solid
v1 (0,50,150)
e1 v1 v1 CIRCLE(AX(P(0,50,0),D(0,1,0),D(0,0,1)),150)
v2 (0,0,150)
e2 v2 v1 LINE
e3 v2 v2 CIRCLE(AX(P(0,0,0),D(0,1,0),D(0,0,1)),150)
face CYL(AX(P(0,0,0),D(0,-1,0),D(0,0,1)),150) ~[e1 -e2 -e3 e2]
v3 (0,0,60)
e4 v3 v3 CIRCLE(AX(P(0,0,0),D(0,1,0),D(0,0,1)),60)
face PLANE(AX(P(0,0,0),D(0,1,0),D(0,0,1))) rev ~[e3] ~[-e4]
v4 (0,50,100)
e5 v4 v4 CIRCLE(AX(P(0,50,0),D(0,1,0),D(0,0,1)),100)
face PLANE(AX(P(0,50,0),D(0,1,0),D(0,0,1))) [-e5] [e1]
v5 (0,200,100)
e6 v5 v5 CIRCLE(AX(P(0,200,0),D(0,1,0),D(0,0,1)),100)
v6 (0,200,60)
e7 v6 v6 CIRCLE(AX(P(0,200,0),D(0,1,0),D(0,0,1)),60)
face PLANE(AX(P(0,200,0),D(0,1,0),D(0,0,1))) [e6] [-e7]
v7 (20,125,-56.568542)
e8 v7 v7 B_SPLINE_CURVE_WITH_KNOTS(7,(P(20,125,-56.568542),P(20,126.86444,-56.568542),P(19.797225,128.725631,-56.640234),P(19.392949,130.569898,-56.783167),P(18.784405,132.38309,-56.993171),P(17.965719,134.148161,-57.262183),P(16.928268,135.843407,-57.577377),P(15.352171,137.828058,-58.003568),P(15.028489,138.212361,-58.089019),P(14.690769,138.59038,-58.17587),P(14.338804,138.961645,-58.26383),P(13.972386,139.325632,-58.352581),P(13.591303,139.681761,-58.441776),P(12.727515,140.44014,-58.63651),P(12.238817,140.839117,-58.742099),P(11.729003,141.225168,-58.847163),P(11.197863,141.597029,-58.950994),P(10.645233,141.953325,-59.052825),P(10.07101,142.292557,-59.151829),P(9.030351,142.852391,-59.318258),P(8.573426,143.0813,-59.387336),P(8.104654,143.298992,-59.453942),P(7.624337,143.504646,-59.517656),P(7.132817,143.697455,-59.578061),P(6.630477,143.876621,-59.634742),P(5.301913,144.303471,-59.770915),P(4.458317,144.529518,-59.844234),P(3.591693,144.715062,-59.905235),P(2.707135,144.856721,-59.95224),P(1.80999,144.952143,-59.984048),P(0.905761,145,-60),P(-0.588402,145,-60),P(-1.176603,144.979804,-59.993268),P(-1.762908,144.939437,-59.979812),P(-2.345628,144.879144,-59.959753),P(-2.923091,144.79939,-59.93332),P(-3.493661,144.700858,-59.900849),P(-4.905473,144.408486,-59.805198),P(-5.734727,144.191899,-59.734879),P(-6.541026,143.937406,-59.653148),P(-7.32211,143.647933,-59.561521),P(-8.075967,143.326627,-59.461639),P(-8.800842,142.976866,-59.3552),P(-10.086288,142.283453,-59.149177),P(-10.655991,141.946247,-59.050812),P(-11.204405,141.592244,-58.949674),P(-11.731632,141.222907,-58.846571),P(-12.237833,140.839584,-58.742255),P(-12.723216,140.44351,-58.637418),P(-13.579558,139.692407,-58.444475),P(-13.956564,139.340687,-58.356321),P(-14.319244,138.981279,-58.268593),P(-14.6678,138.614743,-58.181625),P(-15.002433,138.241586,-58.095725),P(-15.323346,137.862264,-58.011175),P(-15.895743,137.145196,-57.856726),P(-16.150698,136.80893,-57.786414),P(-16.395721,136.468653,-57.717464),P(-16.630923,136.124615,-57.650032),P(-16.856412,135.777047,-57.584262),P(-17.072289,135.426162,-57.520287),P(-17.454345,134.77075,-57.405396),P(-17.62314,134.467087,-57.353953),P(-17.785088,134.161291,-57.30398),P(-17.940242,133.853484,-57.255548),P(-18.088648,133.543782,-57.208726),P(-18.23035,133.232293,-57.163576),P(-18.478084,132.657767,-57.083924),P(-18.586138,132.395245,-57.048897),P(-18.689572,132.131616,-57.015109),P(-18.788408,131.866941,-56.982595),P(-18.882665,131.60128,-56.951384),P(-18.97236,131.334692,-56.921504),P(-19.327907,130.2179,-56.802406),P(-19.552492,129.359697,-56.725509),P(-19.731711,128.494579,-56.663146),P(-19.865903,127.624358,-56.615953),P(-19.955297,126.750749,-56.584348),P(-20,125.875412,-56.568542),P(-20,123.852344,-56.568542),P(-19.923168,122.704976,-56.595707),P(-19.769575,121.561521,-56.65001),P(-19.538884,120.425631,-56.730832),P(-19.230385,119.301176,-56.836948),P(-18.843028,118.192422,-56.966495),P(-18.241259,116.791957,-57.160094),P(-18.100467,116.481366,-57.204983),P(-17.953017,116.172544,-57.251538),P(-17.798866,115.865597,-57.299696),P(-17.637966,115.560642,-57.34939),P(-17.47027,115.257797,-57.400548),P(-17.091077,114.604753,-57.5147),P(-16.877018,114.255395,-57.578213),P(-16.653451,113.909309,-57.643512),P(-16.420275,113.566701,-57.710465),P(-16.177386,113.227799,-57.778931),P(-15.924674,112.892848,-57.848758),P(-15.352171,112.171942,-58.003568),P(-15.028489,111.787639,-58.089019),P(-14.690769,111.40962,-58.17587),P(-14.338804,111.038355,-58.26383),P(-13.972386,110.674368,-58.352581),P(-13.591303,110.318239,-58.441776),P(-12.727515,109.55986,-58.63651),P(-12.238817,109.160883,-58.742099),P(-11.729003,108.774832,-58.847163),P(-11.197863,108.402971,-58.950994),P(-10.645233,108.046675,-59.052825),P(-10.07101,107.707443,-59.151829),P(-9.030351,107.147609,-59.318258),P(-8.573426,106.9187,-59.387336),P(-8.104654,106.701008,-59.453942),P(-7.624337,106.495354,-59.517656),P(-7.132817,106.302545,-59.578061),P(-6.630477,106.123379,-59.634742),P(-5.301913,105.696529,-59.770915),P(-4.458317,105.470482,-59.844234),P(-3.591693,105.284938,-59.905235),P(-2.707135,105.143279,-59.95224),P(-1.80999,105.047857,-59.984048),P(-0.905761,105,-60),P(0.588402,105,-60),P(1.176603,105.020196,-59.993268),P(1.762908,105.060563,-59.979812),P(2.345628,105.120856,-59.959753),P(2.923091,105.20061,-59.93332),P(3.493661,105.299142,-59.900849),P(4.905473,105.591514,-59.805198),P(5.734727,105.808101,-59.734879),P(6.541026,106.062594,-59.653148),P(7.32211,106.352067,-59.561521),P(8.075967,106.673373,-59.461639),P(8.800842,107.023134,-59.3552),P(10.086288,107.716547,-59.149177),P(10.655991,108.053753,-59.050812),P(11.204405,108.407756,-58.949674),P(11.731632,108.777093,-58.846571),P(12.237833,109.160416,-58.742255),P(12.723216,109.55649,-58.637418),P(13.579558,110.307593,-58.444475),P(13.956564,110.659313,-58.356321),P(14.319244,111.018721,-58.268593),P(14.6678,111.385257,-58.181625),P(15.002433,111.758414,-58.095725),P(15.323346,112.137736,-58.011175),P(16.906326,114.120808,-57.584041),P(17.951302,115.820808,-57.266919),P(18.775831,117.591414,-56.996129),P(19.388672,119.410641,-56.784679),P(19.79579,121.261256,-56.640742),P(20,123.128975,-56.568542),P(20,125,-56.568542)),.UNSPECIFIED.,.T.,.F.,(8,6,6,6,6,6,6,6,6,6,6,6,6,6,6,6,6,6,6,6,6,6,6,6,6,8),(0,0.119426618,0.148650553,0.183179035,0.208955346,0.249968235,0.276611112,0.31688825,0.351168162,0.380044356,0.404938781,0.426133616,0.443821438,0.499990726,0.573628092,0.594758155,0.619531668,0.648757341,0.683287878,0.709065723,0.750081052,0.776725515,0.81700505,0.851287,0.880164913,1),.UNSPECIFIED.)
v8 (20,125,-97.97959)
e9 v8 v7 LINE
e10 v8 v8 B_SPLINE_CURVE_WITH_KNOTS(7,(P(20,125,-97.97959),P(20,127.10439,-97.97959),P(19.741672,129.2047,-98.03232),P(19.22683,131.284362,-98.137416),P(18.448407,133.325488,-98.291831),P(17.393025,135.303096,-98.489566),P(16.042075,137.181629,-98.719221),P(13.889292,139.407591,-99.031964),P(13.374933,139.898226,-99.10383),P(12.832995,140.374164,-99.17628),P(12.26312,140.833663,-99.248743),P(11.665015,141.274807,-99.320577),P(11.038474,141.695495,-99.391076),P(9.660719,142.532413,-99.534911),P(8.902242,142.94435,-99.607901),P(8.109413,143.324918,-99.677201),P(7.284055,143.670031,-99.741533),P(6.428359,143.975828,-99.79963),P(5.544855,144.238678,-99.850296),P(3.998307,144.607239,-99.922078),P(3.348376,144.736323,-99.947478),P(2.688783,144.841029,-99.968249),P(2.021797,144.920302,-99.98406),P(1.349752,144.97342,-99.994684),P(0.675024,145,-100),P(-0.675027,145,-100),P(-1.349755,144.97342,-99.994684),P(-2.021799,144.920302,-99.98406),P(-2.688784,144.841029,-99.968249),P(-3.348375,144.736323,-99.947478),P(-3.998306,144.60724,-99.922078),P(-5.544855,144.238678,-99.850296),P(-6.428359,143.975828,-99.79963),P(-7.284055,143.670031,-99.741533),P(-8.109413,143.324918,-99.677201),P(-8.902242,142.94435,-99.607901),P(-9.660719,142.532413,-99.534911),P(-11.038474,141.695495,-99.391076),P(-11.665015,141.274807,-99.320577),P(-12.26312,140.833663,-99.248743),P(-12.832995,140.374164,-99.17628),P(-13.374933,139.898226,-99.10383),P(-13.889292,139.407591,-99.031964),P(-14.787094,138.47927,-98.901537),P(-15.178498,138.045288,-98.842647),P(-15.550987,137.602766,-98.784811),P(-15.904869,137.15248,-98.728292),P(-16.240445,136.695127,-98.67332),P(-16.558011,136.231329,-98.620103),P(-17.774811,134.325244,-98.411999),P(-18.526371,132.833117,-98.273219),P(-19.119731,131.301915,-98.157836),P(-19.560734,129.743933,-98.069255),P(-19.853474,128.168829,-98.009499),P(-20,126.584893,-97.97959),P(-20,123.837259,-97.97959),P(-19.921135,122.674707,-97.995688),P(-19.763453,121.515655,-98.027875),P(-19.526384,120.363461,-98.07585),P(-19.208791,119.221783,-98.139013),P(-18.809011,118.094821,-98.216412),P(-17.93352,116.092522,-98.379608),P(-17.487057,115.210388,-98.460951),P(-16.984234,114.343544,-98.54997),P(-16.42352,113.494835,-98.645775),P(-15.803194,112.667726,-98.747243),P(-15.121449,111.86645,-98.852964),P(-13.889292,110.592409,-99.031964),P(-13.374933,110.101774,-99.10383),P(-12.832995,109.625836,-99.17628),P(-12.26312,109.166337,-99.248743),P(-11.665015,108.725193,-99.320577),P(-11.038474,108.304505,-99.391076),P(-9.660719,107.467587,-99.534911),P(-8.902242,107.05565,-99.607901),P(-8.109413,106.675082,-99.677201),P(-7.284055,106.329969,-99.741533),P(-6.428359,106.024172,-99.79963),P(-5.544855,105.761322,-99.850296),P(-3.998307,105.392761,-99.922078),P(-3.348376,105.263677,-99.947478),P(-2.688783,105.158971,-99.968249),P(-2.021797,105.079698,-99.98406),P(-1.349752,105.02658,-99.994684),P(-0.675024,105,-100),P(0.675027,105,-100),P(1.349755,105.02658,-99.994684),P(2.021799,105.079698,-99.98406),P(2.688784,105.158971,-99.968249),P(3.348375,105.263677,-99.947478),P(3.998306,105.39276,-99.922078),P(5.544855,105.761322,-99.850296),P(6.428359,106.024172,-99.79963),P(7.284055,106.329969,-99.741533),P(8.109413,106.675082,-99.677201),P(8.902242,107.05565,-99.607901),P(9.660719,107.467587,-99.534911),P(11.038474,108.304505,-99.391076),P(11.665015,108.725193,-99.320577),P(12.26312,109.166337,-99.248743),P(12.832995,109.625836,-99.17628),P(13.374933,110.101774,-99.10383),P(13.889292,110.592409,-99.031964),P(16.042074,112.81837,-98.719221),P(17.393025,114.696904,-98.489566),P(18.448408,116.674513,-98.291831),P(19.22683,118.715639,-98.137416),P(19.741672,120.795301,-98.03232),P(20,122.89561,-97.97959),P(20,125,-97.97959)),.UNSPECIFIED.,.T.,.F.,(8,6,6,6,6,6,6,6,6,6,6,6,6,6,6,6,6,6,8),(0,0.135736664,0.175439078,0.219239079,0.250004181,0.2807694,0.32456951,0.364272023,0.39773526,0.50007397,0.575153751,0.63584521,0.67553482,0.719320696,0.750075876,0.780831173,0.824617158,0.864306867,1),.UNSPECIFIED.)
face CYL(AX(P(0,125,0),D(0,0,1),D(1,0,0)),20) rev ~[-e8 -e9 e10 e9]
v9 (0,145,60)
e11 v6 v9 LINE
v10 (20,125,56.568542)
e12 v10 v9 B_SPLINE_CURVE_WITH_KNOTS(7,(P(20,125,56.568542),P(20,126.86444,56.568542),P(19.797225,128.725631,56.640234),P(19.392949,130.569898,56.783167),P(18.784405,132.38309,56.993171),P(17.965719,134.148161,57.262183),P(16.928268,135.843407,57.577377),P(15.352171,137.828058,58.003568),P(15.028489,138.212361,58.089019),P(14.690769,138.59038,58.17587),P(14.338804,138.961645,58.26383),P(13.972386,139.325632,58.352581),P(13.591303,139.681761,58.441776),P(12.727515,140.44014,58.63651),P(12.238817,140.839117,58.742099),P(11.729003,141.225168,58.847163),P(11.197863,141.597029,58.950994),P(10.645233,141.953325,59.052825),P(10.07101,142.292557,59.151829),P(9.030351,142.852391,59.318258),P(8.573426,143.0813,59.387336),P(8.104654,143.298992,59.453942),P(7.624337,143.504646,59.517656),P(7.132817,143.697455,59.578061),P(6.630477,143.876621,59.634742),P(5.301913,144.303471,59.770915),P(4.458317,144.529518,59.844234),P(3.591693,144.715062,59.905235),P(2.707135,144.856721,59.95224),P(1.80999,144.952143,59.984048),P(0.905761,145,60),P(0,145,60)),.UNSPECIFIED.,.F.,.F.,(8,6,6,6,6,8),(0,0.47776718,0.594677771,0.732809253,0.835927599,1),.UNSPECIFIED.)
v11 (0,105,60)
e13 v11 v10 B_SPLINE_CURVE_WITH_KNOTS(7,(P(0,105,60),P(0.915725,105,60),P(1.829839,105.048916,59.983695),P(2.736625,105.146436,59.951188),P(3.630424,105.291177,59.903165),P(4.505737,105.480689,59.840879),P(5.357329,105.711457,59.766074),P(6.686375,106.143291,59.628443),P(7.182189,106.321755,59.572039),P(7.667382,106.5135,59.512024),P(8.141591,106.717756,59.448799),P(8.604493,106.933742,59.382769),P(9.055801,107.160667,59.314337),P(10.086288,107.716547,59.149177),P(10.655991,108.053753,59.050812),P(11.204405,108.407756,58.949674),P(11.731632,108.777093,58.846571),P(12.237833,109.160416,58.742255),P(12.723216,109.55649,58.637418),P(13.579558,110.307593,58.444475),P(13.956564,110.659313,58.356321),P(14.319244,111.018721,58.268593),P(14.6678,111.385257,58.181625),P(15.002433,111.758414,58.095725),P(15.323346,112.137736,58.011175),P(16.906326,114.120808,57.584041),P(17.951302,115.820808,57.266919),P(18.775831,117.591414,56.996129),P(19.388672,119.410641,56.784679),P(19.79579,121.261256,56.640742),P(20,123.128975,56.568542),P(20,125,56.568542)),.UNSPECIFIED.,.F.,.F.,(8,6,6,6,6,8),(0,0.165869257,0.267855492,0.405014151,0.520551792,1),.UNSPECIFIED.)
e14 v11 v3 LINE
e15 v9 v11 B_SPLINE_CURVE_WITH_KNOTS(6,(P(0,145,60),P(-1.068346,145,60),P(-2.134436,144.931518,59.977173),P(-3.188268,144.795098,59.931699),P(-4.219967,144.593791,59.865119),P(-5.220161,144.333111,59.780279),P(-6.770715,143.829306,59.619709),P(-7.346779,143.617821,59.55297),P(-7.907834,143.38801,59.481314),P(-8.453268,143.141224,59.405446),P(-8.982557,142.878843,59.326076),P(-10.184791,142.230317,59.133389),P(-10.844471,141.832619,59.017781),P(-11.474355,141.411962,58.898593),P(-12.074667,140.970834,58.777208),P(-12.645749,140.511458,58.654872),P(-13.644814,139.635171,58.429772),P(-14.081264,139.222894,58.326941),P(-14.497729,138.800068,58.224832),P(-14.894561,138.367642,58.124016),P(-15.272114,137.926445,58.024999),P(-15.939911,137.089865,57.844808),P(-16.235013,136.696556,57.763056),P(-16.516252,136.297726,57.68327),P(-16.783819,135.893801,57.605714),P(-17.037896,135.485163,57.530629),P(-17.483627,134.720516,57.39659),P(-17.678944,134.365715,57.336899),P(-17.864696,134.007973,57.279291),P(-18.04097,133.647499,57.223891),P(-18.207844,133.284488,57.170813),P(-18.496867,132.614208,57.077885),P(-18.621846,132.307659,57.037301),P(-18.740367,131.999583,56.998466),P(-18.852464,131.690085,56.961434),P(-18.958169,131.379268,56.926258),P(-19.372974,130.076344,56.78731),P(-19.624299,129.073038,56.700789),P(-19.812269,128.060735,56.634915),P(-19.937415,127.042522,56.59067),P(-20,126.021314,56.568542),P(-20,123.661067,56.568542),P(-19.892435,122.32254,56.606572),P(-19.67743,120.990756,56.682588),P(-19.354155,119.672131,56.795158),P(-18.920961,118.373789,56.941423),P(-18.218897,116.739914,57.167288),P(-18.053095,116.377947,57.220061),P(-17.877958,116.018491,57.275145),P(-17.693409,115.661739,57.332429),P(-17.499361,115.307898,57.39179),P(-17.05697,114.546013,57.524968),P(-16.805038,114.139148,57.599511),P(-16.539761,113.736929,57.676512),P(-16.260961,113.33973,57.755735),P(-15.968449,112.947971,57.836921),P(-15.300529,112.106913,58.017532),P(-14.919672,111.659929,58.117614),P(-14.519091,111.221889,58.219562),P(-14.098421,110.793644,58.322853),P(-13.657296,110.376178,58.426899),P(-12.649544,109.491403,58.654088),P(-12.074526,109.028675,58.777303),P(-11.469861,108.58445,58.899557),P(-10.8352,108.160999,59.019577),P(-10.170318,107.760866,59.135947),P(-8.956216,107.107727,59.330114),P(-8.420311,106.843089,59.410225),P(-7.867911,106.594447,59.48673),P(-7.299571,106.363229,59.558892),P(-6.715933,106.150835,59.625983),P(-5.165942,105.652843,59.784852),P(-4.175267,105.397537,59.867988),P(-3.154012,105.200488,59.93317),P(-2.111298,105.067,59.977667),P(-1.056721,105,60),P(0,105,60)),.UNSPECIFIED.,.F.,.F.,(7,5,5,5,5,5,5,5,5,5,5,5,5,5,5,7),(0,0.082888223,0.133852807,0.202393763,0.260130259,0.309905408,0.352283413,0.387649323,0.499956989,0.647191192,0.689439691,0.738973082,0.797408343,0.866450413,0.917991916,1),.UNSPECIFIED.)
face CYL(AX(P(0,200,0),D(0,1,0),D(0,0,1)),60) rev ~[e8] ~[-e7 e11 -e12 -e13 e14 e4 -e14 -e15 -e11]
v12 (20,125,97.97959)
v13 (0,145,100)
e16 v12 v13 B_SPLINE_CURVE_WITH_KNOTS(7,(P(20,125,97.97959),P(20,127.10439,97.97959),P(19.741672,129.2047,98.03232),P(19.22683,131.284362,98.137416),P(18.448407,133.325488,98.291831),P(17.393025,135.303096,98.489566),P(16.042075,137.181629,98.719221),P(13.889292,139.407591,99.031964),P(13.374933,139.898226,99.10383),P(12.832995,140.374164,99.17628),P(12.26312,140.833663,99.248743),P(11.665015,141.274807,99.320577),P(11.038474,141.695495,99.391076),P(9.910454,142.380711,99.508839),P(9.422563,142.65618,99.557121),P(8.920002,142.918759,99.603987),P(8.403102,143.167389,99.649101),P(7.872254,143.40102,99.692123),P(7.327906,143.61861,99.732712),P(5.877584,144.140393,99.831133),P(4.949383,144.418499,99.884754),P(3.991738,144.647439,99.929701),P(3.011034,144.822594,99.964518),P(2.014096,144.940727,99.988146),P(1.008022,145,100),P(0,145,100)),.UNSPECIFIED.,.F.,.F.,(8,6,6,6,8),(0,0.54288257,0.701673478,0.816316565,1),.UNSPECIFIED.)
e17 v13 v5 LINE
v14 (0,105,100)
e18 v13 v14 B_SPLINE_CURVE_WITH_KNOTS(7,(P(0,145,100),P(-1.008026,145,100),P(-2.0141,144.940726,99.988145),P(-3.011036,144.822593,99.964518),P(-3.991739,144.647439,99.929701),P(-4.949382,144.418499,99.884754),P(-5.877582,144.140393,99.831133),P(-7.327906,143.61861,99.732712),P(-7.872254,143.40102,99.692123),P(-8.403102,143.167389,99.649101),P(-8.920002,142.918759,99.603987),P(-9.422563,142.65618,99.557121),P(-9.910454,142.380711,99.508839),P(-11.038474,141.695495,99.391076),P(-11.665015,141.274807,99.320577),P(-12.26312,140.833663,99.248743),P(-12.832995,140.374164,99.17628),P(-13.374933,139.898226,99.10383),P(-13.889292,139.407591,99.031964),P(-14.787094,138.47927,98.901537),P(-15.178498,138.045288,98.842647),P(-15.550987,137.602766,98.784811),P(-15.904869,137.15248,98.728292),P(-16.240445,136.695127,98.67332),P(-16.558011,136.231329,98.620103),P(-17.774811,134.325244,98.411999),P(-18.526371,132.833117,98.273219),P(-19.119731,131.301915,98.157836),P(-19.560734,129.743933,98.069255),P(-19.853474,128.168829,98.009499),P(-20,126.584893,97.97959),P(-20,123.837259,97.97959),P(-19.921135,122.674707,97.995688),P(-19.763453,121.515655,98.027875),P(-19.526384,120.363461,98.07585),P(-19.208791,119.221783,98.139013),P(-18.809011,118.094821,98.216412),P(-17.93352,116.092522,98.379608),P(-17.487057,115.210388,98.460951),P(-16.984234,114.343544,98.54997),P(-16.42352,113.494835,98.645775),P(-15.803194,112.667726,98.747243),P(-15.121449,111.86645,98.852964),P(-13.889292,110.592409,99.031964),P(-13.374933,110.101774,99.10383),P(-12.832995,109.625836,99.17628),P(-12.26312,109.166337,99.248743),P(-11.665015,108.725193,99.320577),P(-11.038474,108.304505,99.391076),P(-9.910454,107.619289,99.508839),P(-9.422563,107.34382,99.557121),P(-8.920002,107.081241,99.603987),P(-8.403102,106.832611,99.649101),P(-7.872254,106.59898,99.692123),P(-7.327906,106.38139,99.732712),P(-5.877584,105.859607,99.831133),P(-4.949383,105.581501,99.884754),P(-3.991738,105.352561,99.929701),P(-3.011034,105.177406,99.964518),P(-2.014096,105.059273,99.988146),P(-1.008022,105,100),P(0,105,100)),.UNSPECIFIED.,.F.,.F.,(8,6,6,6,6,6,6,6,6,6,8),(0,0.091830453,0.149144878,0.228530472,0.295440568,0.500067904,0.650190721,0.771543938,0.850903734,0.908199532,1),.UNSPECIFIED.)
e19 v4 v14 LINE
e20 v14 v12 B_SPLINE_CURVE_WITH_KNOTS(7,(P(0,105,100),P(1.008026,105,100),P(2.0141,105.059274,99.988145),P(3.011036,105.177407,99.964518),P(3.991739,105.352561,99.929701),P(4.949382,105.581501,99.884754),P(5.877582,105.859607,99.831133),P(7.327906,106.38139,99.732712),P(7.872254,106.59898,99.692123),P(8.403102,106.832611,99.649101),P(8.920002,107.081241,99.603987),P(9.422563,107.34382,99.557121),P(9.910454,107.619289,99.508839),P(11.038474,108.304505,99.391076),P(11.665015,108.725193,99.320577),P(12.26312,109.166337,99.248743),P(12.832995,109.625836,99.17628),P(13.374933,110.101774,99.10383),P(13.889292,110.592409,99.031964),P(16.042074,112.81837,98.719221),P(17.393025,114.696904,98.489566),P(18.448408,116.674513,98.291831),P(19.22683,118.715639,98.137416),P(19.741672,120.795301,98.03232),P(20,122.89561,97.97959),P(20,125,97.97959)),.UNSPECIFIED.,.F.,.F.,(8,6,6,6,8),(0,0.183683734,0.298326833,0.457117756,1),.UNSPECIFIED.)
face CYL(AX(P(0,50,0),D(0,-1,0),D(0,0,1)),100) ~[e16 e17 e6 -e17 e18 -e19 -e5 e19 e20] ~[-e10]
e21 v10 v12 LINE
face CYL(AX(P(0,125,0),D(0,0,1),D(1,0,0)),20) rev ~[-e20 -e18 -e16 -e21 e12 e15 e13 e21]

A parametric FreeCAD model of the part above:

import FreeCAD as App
import Part
import Sketcher
Q = App.Units.Quantity

doc = App.newDocument("Part")
body = doc.addObject("PartDesign::Body", "Body")

sketch1 = doc.addObject("Sketcher::SketchObject", "Sketch")
body.addObject(sketch1)
sketch1.AttachmentSupport = (doc.XZ_Plane, [""])
sketch1.MapMode = "FlatFace"
sketch1.addGeometry(Part.Circle(App.Vector(0, 0, 0), App.Vector(0, 0, 1), 150), False)
sketch1.addConstraint(Sketcher.Constraint("Coincident", 0, 3, -1, 1))
sketch1.addConstraint(Sketcher.Constraint("Diameter", 0, Q("300 mm")))
pad1 = doc.addObject("PartDesign::Pad", "Pad")
body.addObject(pad1)
pad1.Profile = sketch1
pad1.Length = 50
pad1.Reversed = True

sketch2 = doc.addObject("Sketcher::SketchObject", "Sketch001")
body.addObject(sketch2)
sketch2.AttachmentSupport = (doc.XZ_Plane, [""])
sketch2.MapMode = "FlatFace"
sketch2.AttachmentOffset = App.Placement(App.Vector(0, 0, -50), App.Rotation())
sketch2.addGeometry(Part.Circle(App.Vector(0, 0, 0), App.Vector(0, 0, 1), 100), False)
sketch2.addConstraint(Sketcher.Constraint("Coincident", 0, 3, -1, 1))
sketch2.addConstraint(Sketcher.Constraint("Diameter", 0, Q("200 mm")))
pad2 = doc.addObject("PartDesign::Pad", "Pad001")
body.addObject(pad2)
pad2.Profile = sketch2
pad2.Length = 150
pad2.Reversed = True

sketch3 = doc.addObject("Sketcher::SketchObject", "Sketch002")
body.addObject(sketch3)
sketch3.AttachmentSupport = (doc.XZ_Plane, [""])
sketch3.MapMode = "FlatFace"
sketch3.AttachmentOffset = App.Placement(App.Vector(0, 0, -200), App.Rotation())
sketch3.addGeometry(Part.Circle(App.Vector(0, 0, 0), App.Vector(0, 0, 1), 60), False)
sketch3.addConstraint(Sketcher.Constraint("Coincident", 0, 3, -1, 1))
sketch3.addConstraint(Sketcher.Constraint("Diameter", 0, Q("120 mm")))
pocket1 = doc.addObject("PartDesign::Pocket", "Pocket")
body.addObject(pocket1)
pocket1.Profile = sketch3
pocket1.Type = "ThroughAll"
pocket1.Reversed = True

sketch4 = doc.addObject("Sketcher::SketchObject", "Sketch003")
body.addObject(sketch4)
sketch4.AttachmentSupport = (doc.XY_Plane, [""])
sketch4.MapMode = "FlatFace"
sketch4.addGeometry(Part.Circle(App.Vector(0, 125, 0), App.Vector(0, 0, 1), 20), False)
sketch4.addConstraint(Sketcher.Constraint("PointOnObject", 0, 3, -2))
sketch4.addConstraint(Sketcher.Constraint("Diameter", 0, Q("40 mm")))
sketch4.addConstraint(Sketcher.Constraint("DistanceY", -1, 1, 0, 3, Q("125 mm")))
pocket2 = doc.addObject("PartDesign::Pocket", "Pocket001")
body.addObject(pocket2)
pocket2.Profile = sketch4
pocket2.Length = 260
pocket2.Midplane = True

doc.recompute()
